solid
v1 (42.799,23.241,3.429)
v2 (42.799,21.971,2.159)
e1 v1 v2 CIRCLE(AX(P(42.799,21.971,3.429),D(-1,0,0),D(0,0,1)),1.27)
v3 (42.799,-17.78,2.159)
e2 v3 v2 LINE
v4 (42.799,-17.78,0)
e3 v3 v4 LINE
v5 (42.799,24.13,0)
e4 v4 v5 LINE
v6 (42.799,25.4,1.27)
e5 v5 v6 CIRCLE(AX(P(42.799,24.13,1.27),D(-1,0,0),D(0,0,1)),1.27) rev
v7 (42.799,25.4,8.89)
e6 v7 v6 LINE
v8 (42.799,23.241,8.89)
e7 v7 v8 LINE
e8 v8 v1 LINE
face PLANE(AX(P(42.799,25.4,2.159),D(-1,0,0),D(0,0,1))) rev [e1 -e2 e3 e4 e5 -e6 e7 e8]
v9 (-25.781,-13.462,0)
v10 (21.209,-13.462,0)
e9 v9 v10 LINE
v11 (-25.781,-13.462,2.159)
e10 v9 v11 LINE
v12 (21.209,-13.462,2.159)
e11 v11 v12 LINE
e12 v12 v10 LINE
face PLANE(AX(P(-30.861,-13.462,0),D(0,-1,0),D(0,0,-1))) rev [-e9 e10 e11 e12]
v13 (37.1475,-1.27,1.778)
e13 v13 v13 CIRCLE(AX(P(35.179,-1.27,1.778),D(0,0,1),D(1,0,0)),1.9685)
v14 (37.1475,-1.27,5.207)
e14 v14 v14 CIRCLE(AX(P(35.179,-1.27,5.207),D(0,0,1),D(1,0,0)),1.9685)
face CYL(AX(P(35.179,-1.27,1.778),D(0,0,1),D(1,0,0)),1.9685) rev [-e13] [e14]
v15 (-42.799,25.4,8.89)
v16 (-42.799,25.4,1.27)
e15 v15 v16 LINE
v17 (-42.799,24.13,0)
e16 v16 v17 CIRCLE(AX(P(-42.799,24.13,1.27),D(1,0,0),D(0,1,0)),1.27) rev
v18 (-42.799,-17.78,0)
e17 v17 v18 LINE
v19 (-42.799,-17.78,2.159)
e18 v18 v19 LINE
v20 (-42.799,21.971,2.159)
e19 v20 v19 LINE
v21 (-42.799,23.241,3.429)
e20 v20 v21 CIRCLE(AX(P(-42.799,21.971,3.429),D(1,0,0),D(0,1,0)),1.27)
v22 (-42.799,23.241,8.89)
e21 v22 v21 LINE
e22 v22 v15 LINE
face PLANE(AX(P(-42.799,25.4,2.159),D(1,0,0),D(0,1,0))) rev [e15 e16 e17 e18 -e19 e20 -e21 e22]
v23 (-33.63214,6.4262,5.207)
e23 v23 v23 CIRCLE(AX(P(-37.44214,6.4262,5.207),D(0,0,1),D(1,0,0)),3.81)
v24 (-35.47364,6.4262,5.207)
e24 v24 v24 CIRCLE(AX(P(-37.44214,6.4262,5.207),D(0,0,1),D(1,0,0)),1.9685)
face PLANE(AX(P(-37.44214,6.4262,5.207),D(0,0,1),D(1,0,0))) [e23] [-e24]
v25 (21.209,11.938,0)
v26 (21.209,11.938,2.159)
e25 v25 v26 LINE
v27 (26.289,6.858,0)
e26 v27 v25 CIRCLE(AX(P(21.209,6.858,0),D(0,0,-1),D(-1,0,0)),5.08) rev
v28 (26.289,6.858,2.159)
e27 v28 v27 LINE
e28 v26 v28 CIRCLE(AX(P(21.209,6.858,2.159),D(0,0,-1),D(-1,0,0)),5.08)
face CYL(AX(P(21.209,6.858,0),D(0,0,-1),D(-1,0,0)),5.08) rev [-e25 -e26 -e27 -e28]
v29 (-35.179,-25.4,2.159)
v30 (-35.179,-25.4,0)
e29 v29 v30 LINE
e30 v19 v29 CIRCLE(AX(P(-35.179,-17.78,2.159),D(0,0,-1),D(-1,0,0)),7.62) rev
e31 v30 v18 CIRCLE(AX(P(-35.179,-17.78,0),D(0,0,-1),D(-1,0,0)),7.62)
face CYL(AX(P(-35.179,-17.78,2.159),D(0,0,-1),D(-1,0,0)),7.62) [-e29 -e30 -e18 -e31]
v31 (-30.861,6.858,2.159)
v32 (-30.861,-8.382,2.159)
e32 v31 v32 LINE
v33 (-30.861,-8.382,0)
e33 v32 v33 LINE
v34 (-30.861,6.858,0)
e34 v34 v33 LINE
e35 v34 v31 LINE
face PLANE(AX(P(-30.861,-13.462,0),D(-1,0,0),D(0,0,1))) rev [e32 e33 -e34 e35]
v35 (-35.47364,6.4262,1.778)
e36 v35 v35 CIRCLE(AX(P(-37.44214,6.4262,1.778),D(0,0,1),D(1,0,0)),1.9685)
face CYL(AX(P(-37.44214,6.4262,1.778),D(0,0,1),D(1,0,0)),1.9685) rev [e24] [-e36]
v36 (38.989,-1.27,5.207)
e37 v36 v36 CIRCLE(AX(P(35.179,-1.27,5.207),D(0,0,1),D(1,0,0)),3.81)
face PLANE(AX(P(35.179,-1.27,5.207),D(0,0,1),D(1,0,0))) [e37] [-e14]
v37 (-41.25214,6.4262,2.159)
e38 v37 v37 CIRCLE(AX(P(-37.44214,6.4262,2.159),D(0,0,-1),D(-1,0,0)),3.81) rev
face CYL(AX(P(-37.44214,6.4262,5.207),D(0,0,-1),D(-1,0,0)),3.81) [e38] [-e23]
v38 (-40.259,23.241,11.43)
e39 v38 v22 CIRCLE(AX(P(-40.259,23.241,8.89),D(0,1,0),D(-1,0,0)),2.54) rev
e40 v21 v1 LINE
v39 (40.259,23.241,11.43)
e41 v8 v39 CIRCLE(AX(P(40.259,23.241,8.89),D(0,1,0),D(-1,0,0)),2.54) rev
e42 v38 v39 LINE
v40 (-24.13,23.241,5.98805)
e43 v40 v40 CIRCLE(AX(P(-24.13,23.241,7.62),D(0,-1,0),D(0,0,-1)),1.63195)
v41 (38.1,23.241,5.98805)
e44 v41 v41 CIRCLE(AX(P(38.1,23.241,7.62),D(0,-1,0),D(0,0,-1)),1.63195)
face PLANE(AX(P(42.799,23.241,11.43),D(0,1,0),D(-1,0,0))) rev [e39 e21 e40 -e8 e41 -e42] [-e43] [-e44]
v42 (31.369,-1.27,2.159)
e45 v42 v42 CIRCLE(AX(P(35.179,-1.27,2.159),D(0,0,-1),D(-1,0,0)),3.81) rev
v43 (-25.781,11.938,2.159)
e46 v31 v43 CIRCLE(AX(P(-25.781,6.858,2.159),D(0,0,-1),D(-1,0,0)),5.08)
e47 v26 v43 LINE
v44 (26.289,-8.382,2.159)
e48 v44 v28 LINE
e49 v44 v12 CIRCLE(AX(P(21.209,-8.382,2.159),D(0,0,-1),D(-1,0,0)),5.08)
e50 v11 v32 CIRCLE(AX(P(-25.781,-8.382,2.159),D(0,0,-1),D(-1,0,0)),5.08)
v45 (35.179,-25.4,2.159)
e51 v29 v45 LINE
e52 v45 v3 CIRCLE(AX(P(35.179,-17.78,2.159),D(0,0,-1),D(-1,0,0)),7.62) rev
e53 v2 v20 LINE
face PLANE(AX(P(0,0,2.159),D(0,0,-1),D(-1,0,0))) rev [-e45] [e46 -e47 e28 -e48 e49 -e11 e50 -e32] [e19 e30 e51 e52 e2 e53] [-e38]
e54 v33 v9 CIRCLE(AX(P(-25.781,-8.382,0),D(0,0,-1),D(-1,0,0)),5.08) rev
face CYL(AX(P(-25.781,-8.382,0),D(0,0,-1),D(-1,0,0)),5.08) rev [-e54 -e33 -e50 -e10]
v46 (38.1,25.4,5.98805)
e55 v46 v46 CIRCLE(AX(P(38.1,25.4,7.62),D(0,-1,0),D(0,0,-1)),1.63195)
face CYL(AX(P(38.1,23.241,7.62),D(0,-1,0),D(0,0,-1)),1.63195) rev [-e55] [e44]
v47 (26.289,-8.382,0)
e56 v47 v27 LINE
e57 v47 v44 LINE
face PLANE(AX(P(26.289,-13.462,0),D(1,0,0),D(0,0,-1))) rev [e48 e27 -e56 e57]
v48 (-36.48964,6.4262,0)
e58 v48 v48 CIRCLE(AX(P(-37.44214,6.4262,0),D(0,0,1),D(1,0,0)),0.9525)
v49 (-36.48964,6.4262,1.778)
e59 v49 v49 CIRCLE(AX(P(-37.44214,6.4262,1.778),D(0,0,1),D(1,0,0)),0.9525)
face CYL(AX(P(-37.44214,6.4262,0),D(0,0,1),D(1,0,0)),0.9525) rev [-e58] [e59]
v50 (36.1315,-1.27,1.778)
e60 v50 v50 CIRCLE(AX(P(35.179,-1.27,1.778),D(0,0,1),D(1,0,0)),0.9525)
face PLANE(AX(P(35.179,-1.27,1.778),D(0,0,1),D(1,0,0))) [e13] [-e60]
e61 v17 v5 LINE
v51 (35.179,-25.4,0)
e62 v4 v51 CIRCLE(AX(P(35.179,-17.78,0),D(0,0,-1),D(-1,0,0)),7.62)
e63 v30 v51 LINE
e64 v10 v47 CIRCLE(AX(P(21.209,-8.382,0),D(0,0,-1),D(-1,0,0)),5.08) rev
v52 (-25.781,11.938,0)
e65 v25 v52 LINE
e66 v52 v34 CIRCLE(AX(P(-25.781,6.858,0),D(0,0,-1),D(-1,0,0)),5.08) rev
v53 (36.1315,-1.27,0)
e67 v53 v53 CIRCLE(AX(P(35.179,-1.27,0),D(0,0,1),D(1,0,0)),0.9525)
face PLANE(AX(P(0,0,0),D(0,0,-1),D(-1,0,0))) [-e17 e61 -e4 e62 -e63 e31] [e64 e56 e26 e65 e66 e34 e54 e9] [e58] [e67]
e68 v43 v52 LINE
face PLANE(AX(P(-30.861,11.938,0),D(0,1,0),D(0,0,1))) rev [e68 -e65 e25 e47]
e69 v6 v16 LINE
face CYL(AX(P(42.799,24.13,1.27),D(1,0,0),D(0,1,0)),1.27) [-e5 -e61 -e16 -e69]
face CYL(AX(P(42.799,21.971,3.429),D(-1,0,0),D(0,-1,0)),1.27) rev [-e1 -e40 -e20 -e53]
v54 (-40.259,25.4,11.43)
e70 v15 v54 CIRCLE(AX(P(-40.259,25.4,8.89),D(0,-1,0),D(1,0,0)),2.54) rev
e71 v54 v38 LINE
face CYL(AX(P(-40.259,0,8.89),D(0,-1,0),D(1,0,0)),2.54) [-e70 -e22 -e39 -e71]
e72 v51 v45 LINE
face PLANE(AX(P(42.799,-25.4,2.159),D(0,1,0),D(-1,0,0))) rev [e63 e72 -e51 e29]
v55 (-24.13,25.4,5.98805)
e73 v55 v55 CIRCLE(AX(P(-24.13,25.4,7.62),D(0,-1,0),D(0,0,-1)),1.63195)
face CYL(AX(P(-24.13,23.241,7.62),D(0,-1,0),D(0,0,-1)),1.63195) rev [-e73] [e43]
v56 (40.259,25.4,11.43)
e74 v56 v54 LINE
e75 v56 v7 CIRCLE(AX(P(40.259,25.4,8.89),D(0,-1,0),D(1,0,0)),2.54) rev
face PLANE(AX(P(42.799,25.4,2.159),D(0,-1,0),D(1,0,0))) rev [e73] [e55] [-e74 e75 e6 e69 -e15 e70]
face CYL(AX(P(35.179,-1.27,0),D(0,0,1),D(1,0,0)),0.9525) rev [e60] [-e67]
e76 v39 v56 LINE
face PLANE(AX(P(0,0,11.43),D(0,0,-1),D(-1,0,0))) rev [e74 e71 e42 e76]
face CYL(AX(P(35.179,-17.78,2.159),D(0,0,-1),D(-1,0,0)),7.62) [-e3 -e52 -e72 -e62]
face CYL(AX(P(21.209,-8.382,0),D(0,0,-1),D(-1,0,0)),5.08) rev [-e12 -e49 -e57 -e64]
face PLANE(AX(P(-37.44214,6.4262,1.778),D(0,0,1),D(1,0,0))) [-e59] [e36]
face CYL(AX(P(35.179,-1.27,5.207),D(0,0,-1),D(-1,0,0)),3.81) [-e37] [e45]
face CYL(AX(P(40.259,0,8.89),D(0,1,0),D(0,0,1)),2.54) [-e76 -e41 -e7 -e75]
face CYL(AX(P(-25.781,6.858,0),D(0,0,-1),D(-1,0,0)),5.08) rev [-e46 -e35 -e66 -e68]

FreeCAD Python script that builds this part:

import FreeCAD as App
import Part
import Sketcher
Q = App.Units.Quantity


def edges_at(feature, points):
    """Names of the edges that pass closest to the given points."""
    edges = feature.Shape.Edges
    near = lambda p: min(range(len(edges)), key=lambda i: edges[i].distToShape(Part.Vertex(*p))[0])
    return sorted({f"Edge{near(p) + 1}" for p in points})

doc = App.newDocument("Part")
body = doc.addObject("PartDesign::Body", "Body")

sketch1 = doc.addObject("Sketcher::SketchObject", "Sketch")
body.addObject(sketch1)
sketch1.AttachmentSupport = (doc.XY_Plane, [""])
sketch1.MapMode = "FlatFace"
sketch1.addGeometry([
    Part.LineSegment(App.Vector(-43, 25, 0), App.Vector(-43, -25, 0)),
    Part.LineSegment(App.Vector(-43, -25, 0), App.Vector(43, -25, 0)),
    Part.LineSegment(App.Vector(43, -25, 0), App.Vector(43, 25, 0)),
    Part.LineSegment(App.Vector(43, 25, 0), App.Vector(-43, 25, 0)),
], False)
sketch1.addConstraint([
    Sketcher.Constraint("Coincident", 0, 2, 1, 1),
    Sketcher.Constraint("Coincident", 1, 2, 2, 1),
    Sketcher.Constraint("Coincident", 2, 2, 3, 1),
    Sketcher.Constraint("Coincident", 3, 2, 0, 1),
    Sketcher.Constraint("Vertical", 0),
    Sketcher.Constraint("Horizontal", 1),
    Sketcher.Constraint("Vertical", 2),
    Sketcher.Constraint("Horizontal", 3),
    Sketcher.Constraint("Symmetric", 0, 2, 2, 2, -1, 1),
    Sketcher.Constraint("DistanceY", 0, 2, 0, 1, Q("2 in")),
    Sketcher.Constraint("DistanceX", 1, 1, 1, 2, Q("3.37 in")),
])
pad1 = doc.addObject("PartDesign::Pad", "Pad")
body.addObject(pad1)
pad1.Profile = sketch1
pad1.Length = Q("0.085 in")

sketch2 = doc.addObject("Sketcher::SketchObject", "Sketch001")
body.addObject(sketch2)
sketch2.AttachmentSupport = (doc.XY_Plane, [""])
sketch2.MapMode = "FlatFace"
sketch2.AttachmentOffset = App.Placement(App.Vector(0, 0, 0.085 * 25.4), App.Rotation())
sketch2.addGeometry([
    Part.LineSegment(App.Vector(-42.8, 25.4, 0), App.Vector(-42.8, 23.2, 0)),
    Part.LineSegment(App.Vector(-42.8, 23.2, 0), App.Vector(42.8, 23.2, 0)),
    Part.LineSegment(App.Vector(42.8, 23.2, 0), App.Vector(42.8, 25.4, 0)),
    Part.LineSegment(App.Vector(42.8, 25.4, 0), App.Vector(-42.8, 25.4, 0)),
], False)
sketch2.addConstraint([
    Sketcher.Constraint("Coincident", 0, 2, 1, 1),
    Sketcher.Constraint("Coincident", 1, 2, 2, 1),
    Sketcher.Constraint("Coincident", 2, 2, 3, 1),
    Sketcher.Constraint("Coincident", 3, 2, 0, 1),
    Sketcher.Constraint("Vertical", 0),
    Sketcher.Constraint("Horizontal", 1),
    Sketcher.Constraint("Vertical", 2),
    Sketcher.Constraint("Horizontal", 3),
    Sketcher.Constraint("DistanceY", -1, 1, 2, 2, Q("1 in")),
    Sketcher.Constraint("DistanceX", 1, 1, 1, 2, Q("3.37 in")),
    Sketcher.Constraint("DistanceY", 0, 2, 0, 1, Q("0.085 in")),
    Sketcher.Constraint("DistanceX", 0, 2, -1, 1, Q("1.685 in")),
])
pad2 = doc.addObject("PartDesign::Pad", "Pad001")
body.addObject(pad2)
pad2.Profile = sketch2
pad2.Length = Q("0.365 in")
doc.recompute()

fillet = doc.addObject("PartDesign::Fillet", "Fillet")
body.addObject(fillet)
fillet.Base = (pad2, edges_at(pad2, [(0, 23.241, 2.159)]))
fillet.Radius = Q("0.05 in")
doc.recompute()

fillet2 = doc.addObject("PartDesign::Fillet", "Fillet001")
body.addObject(fillet2)
fillet2.Base = (fillet, edges_at(fillet, [(0, 25.4, 0)]))
fillet2.Radius = Q("0.05 in")
doc.recompute()

fillet3 = doc.addObject("PartDesign::Fillet", "Fillet002")
body.addObject(fillet3)
fillet3.Base = (fillet2, edges_at(fillet2, [(42.799, 24.32, 11.43), (-42.799, 24.32, 11.43)]))
fillet3.Radius = Q("0.1 in")
doc.recompute()

fillet4 = doc.addObject("PartDesign::Fillet", "Fillet003")
body.addObject(fillet4)
fillet4.Base = (fillet3, edges_at(fillet3, [(42.799, -25.4, 1.079), (-42.799, -25.4, 1.079)]))
fillet4.Radius = Q("0.3 in")

sketch3 = doc.addObject("Sketcher::SketchObject", "Sketch002")
body.addObject(sketch3)
sketch3.AttachmentSupport = (doc.XY_Plane, [""])
sketch3.MapMode = "FlatFace"
sketch3.AttachmentOffset = App.Placement(App.Vector(0, 0, 0.085 * 25.4), App.Rotation())
sketch3.addGeometry([
    Part.LineSegment(App.Vector(-31, 12, 0), App.Vector(-31, -13, 0)),
    Part.LineSegment(App.Vector(-31, -13, 0), App.Vector(26, -13, 0)),
    Part.LineSegment(App.Vector(26, -13, 0), App.Vector(26, 12, 0)),
    Part.LineSegment(App.Vector(26, 12, 0), App.Vector(-31, 12, 0)),
], False)
sketch3.addConstraint([
    Sketcher.Constraint("Coincident", 0, 2, 1, 1),
    Sketcher.Constraint("Coincident", 1, 2, 2, 1),
    Sketcher.Constraint("Coincident", 2, 2, 3, 1),
    Sketcher.Constraint("Coincident", 3, 2, 0, 1),
    Sketcher.Constraint("Vertical", 0),
    Sketcher.Constraint("Horizontal", 1),
    Sketcher.Constraint("Vertical", 2),
    Sketcher.Constraint("Horizontal", 3),
    Sketcher.Constraint("DistanceY", 0, 2, 0, 1, Q("1 in")),
    Sketcher.Constraint("DistanceX", 1, 1, 1, 2, Q("2.25 in")),
    Sketcher.Constraint("DistanceY", 0, 2, -1, 1, Q("0.53 in")),
    Sketcher.Constraint("DistanceX", 0, 2, -1, 1, Q("1.215 in")),
])
pocket1 = doc.addObject("PartDesign::Pocket", "Pocket")
body.addObject(pocket1)
pocket1.Profile = sketch3
pocket1.Type = "ThroughAll"
doc.recompute()

fillet5 = doc.addObject("PartDesign::Fillet", "Fillet004")
body.addObject(fillet5)
fillet5.Base = (pocket1, edges_at(pocket1, [
    (-30.861, -13.462, 1.079),
    (-30.861, 11.938, 1.079),
    (26.289, 11.938, 1.079),
    (26.289, -13.462, 1.079),
]))
fillet5.Radius = Q("0.2 in")

sketch4 = doc.addObject("Sketcher::SketchObject", "Sketch003")
body.addObject(sketch4)
sketch4.AttachmentSupport = (doc.XZ_Plane, [""])
sketch4.MapMode = "FlatFace"
sketch4.AttachmentOffset = App.Placement(App.Vector(0, 0, -0.915 * 25.4), App.Rotation())
sketch4.addGeometry([
    Part.Circle(App.Vector(38.1, 7.6, 0), App.Vector(0, 0, 1), 1.6),
    Part.Circle(App.Vector(-24.1, 7.6, 0), App.Vector(0, 0, 1), 1.6),
], False)
sketch4.addConstraint([
    Sketcher.Constraint("Equal", 0, 1),
    Sketcher.Constraint("Horizontal", 0, 3, 1, 3),
    Sketcher.Constraint("Diameter", 0, Q("0.1285 in")),
    Sketcher.Constraint("DistanceX", -1, 1, 0, 3, Q("1.5 in")),
    Sketcher.Constraint("DistanceY", -1, 1, 0, 3, Q("0.3 in")),
    Sketcher.Constraint("DistanceX", 1, 3, -1, 1, Q("0.95 in")),
])
doc.recompute()
hole = doc.addObject("PartDesign::Hole", "Hole")
body.addObject(hole)
hole.Profile = sketch4
hole.ThreadType = "None"
hole.Diameter = Q("0.1285 in")
hole.DepthType = "ThroughAll"

sketch5 = doc.addObject("Sketcher::SketchObject", "Sketch004")
body.addObject(sketch5)
sketch5.AttachmentSupport = (doc.XY_Plane, [""])
sketch5.MapMode = "FlatFace"
sketch5.AttachmentOffset = App.Placement(App.Vector(0, 0, 0.085 * 25.4), App.Rotation())
sketch5.addGeometry([
    Part.Circle(App.Vector(35.2, -1.3, 0), App.Vector(0, 0, 1), 3.8),
    Part.Circle(App.Vector(-37.4, 6.4, 0), App.Vector(0, 0, 1), 3.8),
], False)
sketch5.addConstraint([
    Sketcher.Constraint("Equal", 0, 1),
    Sketcher.Constraint("Diameter", 0, Q("0.3 in")),
    Sketcher.Constraint("DistanceY", 0, 3, -1, 1, Q("0.05 in")),
    Sketcher.Constraint("DistanceX", -1, 1, 0, 3, Q("1.385 in")),
    Sketcher.Constraint("DistanceY", -1, 1, 1, 3, Q("0.253 in")),
    Sketcher.Constraint("DistanceX", 1, 3, -1, 1, Q("1.4741 in")),
])
pad3 = doc.addObject("PartDesign::Pad", "Pad002")
body.addObject(pad3)
pad3.Profile = sketch5
pad3.Length = Q("0.12 in")

sketch6 = doc.addObject("Sketcher::SketchObject", "Sketch005")
body.addObject(sketch6)
sketch6.AttachmentSupport = (doc.XY_Plane, [""])
sketch6.MapMode = "FlatFace"
sketch6.AttachmentOffset = App.Placement(App.Vector(0, 0, 0.205 * 25.4), App.Rotation())
sketch6.addGeometry([
    Part.Circle(App.Vector(-37.4, 6.4, 0), App.Vector(0, 0, 1), 2),
    Part.Circle(App.Vector(35.2, -1.3, 0), App.Vector(0, 0, 1), 2),
], False)
sketch6.addConstraint([
    Sketcher.Constraint("Equal", 0, 1),
    Sketcher.Constraint("Diameter", 0, Q("0.155 in")),
    Sketcher.Constraint("DistanceY", 1, 3, -1, 1, Q("0.05 in")),
    Sketcher.Constraint("DistanceY", -1, 1, 0, 3, Q("0.253 in")),
    Sketcher.Constraint("DistanceX", -1, 1, 1, 3, Q("1.385 in")),
    Sketcher.Constraint("DistanceX", 0, 3, -1, 1, Q("1.4741 in")),
])
pocket2 = doc.addObject("PartDesign::Pocket", "Pocket001")
body.addObject(pocket2)
pocket2.Profile = sketch6
pocket2.Length = Q("0.135 in")

sketch7 = doc.addObject("Sketcher::SketchObject", "Sketch006")
body.addObject(sketch7)
sketch7.AttachmentSupport = (doc.XY_Plane, [""])
sketch7.MapMode = "FlatFace"
sketch7.AttachmentOffset = App.Placement(App.Vector(0, 0, 0.07 * 25.4), App.Rotation())
sketch7.addGeometry([
    Part.Circle(App.Vector(-37.4, 6.4, 0), App.Vector(0, 0, 1), 1),
    Part.Circle(App.Vector(35.2, -1.3, 0), App.Vector(0, 0, 1), 1),
], False)
sketch7.addConstraint([
    Sketcher.Constraint("Equal", 0, 1),
    Sketcher.Constraint("Diameter", 0, Q("0.075 in")),
    Sketcher.Constraint("DistanceY", 1, 3, -1, 1, Q("0.05 in")),
    Sketcher.Constraint("DistanceY", -1, 1, 0, 3, Q("0.253 in")),
    Sketcher.Constraint("DistanceX", -1, 1, 1, 3, Q("1.385 in")),
    Sketcher.Constraint("DistanceX", 0, 3, -1, 1, Q("1.4741 in")),
])
pocket3 = doc.addObject("PartDesign::Pocket", "Pocket002")
body.addObject(pocket3)
pocket3.Profile = sketch7
pocket3.Type = "ThroughAll"

doc.recompute()
